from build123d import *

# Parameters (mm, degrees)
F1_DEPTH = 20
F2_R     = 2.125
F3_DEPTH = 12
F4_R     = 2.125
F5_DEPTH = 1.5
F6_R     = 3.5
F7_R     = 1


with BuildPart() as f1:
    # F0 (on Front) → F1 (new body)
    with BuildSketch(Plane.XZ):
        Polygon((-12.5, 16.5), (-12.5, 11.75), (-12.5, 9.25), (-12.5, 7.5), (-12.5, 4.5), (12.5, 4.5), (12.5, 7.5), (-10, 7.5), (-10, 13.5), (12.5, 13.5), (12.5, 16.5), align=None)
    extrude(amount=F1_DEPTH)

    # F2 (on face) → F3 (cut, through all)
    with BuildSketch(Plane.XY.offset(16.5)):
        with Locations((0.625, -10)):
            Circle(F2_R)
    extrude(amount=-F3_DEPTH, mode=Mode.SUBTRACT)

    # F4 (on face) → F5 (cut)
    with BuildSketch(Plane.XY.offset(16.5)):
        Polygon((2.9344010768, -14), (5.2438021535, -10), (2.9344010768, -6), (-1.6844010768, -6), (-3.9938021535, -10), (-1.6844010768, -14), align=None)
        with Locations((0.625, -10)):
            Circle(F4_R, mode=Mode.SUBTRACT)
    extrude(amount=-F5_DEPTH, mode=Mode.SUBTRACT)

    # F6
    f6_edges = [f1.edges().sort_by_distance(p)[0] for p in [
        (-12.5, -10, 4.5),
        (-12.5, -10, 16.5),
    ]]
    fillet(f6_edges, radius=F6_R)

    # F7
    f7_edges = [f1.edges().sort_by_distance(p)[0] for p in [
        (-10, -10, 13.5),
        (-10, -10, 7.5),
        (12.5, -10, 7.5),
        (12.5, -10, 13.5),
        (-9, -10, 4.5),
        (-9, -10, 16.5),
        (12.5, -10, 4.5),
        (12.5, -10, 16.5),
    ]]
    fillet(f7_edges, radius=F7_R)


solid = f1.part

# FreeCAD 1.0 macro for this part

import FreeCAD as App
import Part
import Sketcher
from FreeCAD import Vector
Q = App.Units.Quantity


def edges_at(feature, points):
    """Names of the edges that pass closest to the given points."""
    edges = feature.Shape.Edges
    near = lambda p: min(range(len(edges)), key=lambda i: edges[i].distToShape(Part.Vertex(*p))[0])
    return sorted({f"Edge{near(p) + 1}" for p in points})

doc = App.newDocument("Part")
body = doc.addObject("PartDesign::Body", "Body")

# Sketch on XZ plane
sketch1 = doc.addObject("Sketcher::SketchObject", "Sketch")
body.addObject(sketch1)
sketch1.AttachmentSupport = (doc.XZ_Plane, [""])
sketch1.MapMode = "FlatFace"
sketch1.addGeometry(Part.LineSegment(Vector(-12.5, 16.5, 0), Vector(-12.5, 4.5, 0)), False)
sketch1.addGeometry(Part.LineSegment(Vector(-12.5, 4.5, 0), Vector(12.5, 4.5, 0)), False)
sketch1.addGeometry(Part.LineSegment(Vector(12.5, 4.5, 0), Vector(12.5, 7.5, 0)), False)
sketch1.addGeometry(Part.LineSegment(Vector(12.5, 7.5, 0), Vector(-10, 7.5, 0)), False)
sketch1.addGeometry(Part.LineSegment(Vector(-10, 7.5, 0), Vector(-10, 13.5, 0)), False)
sketch1.addGeometry(Part.LineSegment(Vector(-10, 13.5, 0), Vector(12.5, 13.5, 0)), False)
sketch1.addGeometry(Part.LineSegment(Vector(12.5, 13.5, 0), Vector(12.5, 16.5, 0)), False)
sketch1.addGeometry(Part.LineSegment(Vector(12.5, 16.5, 0), Vector(-12.5, 16.5, 0)), False)
sketch1.addConstraint(Sketcher.Constraint("Coincident", 0, 2, 1, 1))
sketch1.addConstraint(Sketcher.Constraint("Coincident", 1, 2, 2, 1))
sketch1.addConstraint(Sketcher.Constraint("Coincident", 2, 2, 3, 1))
sketch1.addConstraint(Sketcher.Constraint("Coincident", 3, 2, 4, 1))
sketch1.addConstraint(Sketcher.Constraint("Coincident", 4, 2, 5, 1))
sketch1.addConstraint(Sketcher.Constraint("Coincident", 5, 2, 6, 1))
sketch1.addConstraint(Sketcher.Constraint("Coincident", 6, 2, 7, 1))
sketch1.addConstraint(Sketcher.Constraint("Coincident", 7, 2, 0, 1))
sketch1.addConstraint(Sketcher.Constraint("Vertical", 0))
sketch1.addConstraint(Sketcher.Constraint("Horizontal", 1))
sketch1.addConstraint(Sketcher.Constraint("Vertical", 2))
sketch1.addConstraint(Sketcher.Constraint("Horizontal", 3))
sketch1.addConstraint(Sketcher.Constraint("Vertical", 4))
sketch1.addConstraint(Sketcher.Constraint("Horizontal", 5))
sketch1.addConstraint(Sketcher.Constraint("Vertical", 6))
sketch1.addConstraint(Sketcher.Constraint("Horizontal", 7))
sketch1.addConstraint(Sketcher.Constraint("Vertical", 2, 2, 5, 2))
sketch1.addConstraint(Sketcher.Constraint("Equal", 2, 6))
sketch1.addConstraint(Sketcher.Constraint("DistanceX", 1, 1, 1, 2, Q("25 mm")))
sketch1.addConstraint(Sketcher.Constraint("DistanceY", 0, 2, 0, 1, Q("12 mm")))
sketch1.addConstraint(Sketcher.Constraint("DistanceY", 2, 1, 2, 2, Q("3 mm")))
sketch1.addConstraint(Sketcher.Constraint("DistanceX", 3, 2, 3, 1, Q("22.5 mm")))
sketch1.addConstraint(Sketcher.Constraint("DistanceX", 3, 2, -1, 1, Q("10 mm")))
sketch1.addConstraint(Sketcher.Constraint("DistanceY", -1, 1, 0, 2, Q("4.5 mm")))
pad1 = doc.addObject("PartDesign::Pad", "Pad")
body.addObject(pad1)
pad1.Profile = sketch1
pad1.Length = 20

# Sketch on XY plane
sketch2 = doc.addObject("Sketcher::SketchObject", "Sketch001")
body.addObject(sketch2)
sketch2.AttachmentSupport = (doc.XY_Plane, [""])
sketch2.MapMode = "FlatFace"
sketch2.AttachmentOffset = App.Placement(Vector(0, 0, 16.5), App.Rotation())
sketch2.addGeometry(Part.Circle(Vector(0.6, -10, 0), Vector(0, 0, 1), 2.1), False)
sketch2.addConstraint(Sketcher.Constraint("Diameter", 0, Q("4.25 mm")))
sketch2.addConstraint(Sketcher.Constraint("DistanceY", 0, 3, -1, 1, Q("10 mm")))
sketch2.addConstraint(Sketcher.Constraint("DistanceX", -1, 1, 0, 3, Q("0.625 mm")))
pocket1 = doc.addObject("PartDesign::Pocket", "Pocket")
body.addObject(pocket1)
pocket1.Profile = sketch2
pocket1.Type = "ThroughAll"

# Sketch on XY plane
sketch3 = doc.addObject("Sketcher::SketchObject", "Sketch002")
body.addObject(sketch3)
sketch3.AttachmentSupport = (doc.XY_Plane, [""])
sketch3.MapMode = "FlatFace"
sketch3.AttachmentOffset = App.Placement(Vector(0, 0, 16.5), App.Rotation())
sketch3.addGeometry(Part.LineSegment(Vector(2.9, -14, 0), Vector(5.2, -10, 0)), False)
sketch3.addGeometry(Part.LineSegment(Vector(5.2, -10, 0), Vector(2.9, -6, 0)), False)
sketch3.addGeometry(Part.LineSegment(Vector(2.9, -6, 0), Vector(-1.7, -6, 0)), False)
sketch3.addGeometry(Part.LineSegment(Vector(-1.7, -6, 0), Vector(-4, -10, 0)), False)
sketch3.addGeometry(Part.LineSegment(Vector(-4, -10, 0), Vector(-1.7, -14, 0)), False)
sketch3.addGeometry(Part.LineSegment(Vector(-1.7, -14, 0), Vector(2.9, -14, 0)), False)
sketch3.addGeometry(Part.Circle(Vector(0.6, -10, 0), Vector(0, 0, 1), 2.1), False)
sketch3.addConstraint(Sketcher.Constraint("Coincident", 0, 2, 1, 1))
sketch3.addConstraint(Sketcher.Constraint("Coincident", 1, 2, 2, 1))
sketch3.addConstraint(Sketcher.Constraint("Coincident", 2, 2, 3, 1))
sketch3.addConstraint(Sketcher.Constraint("Coincident", 3, 2, 4, 1))
sketch3.addConstraint(Sketcher.Constraint("Coincident", 4, 2, 5, 1))
sketch3.addConstraint(Sketcher.Constraint("Coincident", 5, 2, 0, 1))
sketch3.addConstraint(Sketcher.Constraint("Horizontal", 2))
sketch3.addConstraint(Sketcher.Constraint("Horizontal", 5))
sketch3.addConstraint(Sketcher.Constraint("Parallel", 0, 3))
sketch3.addConstraint(Sketcher.Constraint("Parallel", 1, 4))
sketch3.addConstraint(Sketcher.Constraint("Horizontal", 6, 3, 0, 2))
sketch3.addConstraint(Sketcher.Constraint("Horizontal", 0, 2, 3, 2))
sketch3.addConstraint(Sketcher.Constraint("Vertical", 2, 2, 4, 2))
sketch3.addConstraint(Sketcher.Constraint("Vertical", 1, 2, 5, 2))
sketch3.addConstraint(Sketcher.Constraint("Diameter", 6, Q("4.25 mm")))
sketch3.addConstraint(Sketcher.Constraint("Angle", 0, Q("60 deg")))
sketch3.addConstraint(Sketcher.Constraint("DistanceY", 6, 3, -1, 1, Q("10 mm")))
sketch3.addConstraint(Sketcher.Constraint("DistanceY", 1, 2, -1, 1, Q("6 mm")))
sketch3.addConstraint(Sketcher.Constraint("DistanceX", -1, 1, 6, 3, Q("0.625 mm")))
sketch3.addConstraint(Sketcher.Constraint("DistanceX", -1, 1, 1, 2, Q("2.934401 mm")))
sketch3.addConstraint(Sketcher.Constraint("DistanceX", 2, 2, -1, 1, Q("1.684401 mm")))
pocket2 = doc.addObject("PartDesign::Pocket", "Pocket001")
body.addObject(pocket2)
pocket2.Profile = sketch3
pocket2.Length = 1.5
doc.recompute()

fillet = doc.addObject("PartDesign::Fillet", "Fillet")
body.addObject(fillet)
fillet.Base = (pocket2, edges_at(pocket2, [(-12.5, -10, 4.5), (-12.5, -10, 16.5)]))
fillet.Radius = 3.5
doc.recompute()

fillet2 = doc.addObject("PartDesign::Fillet", "Fillet001")
body.addObject(fillet2)
fillet2.Base = (fillet, edges_at(fillet, [
    (-10, -10, 13.5),
    (-10, -10, 7.5),
    (12.5, -10, 7.5),
    (12.5, -10, 13.5),
    (-9, -10, 4.5),
    (-9, -10, 16.5),
    (12.5, -10, 4.5),
    (12.5, -10, 16.5),
]))
fillet2.Radius = 1

doc.recompute()
